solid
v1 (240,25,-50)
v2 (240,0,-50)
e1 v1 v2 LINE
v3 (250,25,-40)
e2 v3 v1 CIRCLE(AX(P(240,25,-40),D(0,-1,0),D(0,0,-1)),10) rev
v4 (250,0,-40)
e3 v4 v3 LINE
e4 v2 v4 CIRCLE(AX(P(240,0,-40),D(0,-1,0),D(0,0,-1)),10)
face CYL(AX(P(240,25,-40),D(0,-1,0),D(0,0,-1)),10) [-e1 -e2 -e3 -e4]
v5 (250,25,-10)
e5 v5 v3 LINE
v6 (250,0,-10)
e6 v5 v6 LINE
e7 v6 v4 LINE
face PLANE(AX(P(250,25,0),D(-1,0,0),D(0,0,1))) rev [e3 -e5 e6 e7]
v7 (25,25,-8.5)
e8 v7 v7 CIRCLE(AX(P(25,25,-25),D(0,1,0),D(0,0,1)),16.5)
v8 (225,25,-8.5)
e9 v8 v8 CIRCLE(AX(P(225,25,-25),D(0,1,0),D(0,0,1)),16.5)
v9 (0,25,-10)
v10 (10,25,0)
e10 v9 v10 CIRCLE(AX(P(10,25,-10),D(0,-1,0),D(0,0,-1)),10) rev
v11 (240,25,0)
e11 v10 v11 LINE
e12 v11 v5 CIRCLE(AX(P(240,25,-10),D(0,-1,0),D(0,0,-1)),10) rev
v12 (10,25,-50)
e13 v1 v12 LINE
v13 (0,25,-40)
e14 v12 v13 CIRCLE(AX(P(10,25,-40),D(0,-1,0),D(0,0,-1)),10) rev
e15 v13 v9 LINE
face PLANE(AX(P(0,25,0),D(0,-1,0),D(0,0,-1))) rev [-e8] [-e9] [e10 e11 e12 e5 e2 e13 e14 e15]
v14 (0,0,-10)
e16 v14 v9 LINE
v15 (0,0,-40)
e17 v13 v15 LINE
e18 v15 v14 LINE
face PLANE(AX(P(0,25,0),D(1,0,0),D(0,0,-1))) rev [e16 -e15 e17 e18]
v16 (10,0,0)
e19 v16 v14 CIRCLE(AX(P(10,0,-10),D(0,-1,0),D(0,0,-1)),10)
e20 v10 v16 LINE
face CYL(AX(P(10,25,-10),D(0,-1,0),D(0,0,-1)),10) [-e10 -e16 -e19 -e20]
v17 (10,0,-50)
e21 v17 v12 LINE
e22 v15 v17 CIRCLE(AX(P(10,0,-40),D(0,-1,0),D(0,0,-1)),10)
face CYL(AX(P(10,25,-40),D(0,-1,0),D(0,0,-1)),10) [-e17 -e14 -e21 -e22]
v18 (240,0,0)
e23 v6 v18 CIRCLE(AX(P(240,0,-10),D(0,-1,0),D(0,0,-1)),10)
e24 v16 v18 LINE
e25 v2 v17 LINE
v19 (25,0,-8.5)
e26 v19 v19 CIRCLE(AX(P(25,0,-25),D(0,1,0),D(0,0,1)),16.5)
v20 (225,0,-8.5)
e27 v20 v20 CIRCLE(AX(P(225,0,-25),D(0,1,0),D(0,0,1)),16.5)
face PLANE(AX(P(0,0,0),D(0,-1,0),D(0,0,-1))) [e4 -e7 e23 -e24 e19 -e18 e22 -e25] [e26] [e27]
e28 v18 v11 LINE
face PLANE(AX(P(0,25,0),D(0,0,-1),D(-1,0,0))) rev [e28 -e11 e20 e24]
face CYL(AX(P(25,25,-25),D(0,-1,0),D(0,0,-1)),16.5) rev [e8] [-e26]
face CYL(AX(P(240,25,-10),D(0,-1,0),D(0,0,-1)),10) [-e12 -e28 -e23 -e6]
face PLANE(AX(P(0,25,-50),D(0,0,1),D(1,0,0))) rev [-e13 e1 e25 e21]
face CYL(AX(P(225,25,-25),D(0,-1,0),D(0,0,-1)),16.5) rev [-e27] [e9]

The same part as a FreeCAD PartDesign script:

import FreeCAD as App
import Part
import Sketcher

V = App.Vector


def edges_at(feature, points):
    """Names of the edges that pass closest to the given points."""
    edges = feature.Shape.Edges
    near = lambda p: min(range(len(edges)), key=lambda i: edges[i].distToShape(Part.Vertex(*p))[0])
    return sorted({f"Edge{near(p) + 1}" for p in points})


def add_polygon(sketch, points):
    """Adds a closed chain of lines whose ends are joined by coincident constraints."""
    first, n = sketch.GeometryCount, len(points)
    for a, b in zip(points, points[1:] + points[:1]):
        sketch.addGeometry(Part.LineSegment(App.Vector(*a, 0), App.Vector(*b, 0)), False)
    for i in range(n):
        sketch.addConstraint(Sketcher.Constraint("Coincident", first + i, 2, first + (i + 1) % n, 1))

doc = App.newDocument("Part")
body = doc.addObject("PartDesign::Body", "Body")

sketch1 = body.newObject("Sketcher::SketchObject", "Sketch")
sketch1.AttachmentSupport = (doc.getObject("XZ_Plane"), [""])
sketch1.MapMode = "FlatFace"
add_polygon(sketch1, [(0, -50), (0, 0), (250, 0), (250, -50)])
sketch1.addGeometry(Part.Circle(V(25, -25, 0), V(0, 0, 1), 16.5), False)
sketch1.addGeometry(Part.Circle(V(225, -25, 0), V(0, 0, 1), 16.5), False)
sketch1.addConstraint([
    Sketcher.Constraint("Vertical", 0),
    Sketcher.Constraint("Horizontal", 1),
    Sketcher.Constraint("Vertical", 2),
    Sketcher.Constraint("Horizontal", 3),
    Sketcher.Constraint("Coincident", 0, 2, -1, 1),
    Sketcher.Constraint("Equal", 4, 5),
    Sketcher.Constraint("Horizontal", 4, 3, 5, 3),
    Sketcher.Constraint("Diameter", 4, 33.0),
    Sketcher.Constraint("DistanceX", 1, 1, 1, 2, 250.0),
    Sketcher.Constraint("DistanceY", 0, 1, 0, 2, 50.0),
    Sketcher.Constraint("DistanceX", -1, 1, 4, 3, 25.0),
    Sketcher.Constraint("DistanceY", 4, 3, -1, 1, 25.0),
    Sketcher.Constraint("DistanceX", -1, 1, 5, 3, 225.0),
])
pad1 = body.newObject("PartDesign::Pad", "Pad")
pad1.Profile = sketch1
pad1.Length = 25
pad1.Reversed = True
doc.recompute()

fillet = body.newObject("PartDesign::Fillet", "Fillet")
fillet.Base = (pad1, edges_at(pad1, [
    (0, 12.5, -50),
    (250, 12.5, -50),
    (250, 12.5, 0),
    (0, 12.5, 0),
]))
fillet.Radius = 10

doc.recompute()
